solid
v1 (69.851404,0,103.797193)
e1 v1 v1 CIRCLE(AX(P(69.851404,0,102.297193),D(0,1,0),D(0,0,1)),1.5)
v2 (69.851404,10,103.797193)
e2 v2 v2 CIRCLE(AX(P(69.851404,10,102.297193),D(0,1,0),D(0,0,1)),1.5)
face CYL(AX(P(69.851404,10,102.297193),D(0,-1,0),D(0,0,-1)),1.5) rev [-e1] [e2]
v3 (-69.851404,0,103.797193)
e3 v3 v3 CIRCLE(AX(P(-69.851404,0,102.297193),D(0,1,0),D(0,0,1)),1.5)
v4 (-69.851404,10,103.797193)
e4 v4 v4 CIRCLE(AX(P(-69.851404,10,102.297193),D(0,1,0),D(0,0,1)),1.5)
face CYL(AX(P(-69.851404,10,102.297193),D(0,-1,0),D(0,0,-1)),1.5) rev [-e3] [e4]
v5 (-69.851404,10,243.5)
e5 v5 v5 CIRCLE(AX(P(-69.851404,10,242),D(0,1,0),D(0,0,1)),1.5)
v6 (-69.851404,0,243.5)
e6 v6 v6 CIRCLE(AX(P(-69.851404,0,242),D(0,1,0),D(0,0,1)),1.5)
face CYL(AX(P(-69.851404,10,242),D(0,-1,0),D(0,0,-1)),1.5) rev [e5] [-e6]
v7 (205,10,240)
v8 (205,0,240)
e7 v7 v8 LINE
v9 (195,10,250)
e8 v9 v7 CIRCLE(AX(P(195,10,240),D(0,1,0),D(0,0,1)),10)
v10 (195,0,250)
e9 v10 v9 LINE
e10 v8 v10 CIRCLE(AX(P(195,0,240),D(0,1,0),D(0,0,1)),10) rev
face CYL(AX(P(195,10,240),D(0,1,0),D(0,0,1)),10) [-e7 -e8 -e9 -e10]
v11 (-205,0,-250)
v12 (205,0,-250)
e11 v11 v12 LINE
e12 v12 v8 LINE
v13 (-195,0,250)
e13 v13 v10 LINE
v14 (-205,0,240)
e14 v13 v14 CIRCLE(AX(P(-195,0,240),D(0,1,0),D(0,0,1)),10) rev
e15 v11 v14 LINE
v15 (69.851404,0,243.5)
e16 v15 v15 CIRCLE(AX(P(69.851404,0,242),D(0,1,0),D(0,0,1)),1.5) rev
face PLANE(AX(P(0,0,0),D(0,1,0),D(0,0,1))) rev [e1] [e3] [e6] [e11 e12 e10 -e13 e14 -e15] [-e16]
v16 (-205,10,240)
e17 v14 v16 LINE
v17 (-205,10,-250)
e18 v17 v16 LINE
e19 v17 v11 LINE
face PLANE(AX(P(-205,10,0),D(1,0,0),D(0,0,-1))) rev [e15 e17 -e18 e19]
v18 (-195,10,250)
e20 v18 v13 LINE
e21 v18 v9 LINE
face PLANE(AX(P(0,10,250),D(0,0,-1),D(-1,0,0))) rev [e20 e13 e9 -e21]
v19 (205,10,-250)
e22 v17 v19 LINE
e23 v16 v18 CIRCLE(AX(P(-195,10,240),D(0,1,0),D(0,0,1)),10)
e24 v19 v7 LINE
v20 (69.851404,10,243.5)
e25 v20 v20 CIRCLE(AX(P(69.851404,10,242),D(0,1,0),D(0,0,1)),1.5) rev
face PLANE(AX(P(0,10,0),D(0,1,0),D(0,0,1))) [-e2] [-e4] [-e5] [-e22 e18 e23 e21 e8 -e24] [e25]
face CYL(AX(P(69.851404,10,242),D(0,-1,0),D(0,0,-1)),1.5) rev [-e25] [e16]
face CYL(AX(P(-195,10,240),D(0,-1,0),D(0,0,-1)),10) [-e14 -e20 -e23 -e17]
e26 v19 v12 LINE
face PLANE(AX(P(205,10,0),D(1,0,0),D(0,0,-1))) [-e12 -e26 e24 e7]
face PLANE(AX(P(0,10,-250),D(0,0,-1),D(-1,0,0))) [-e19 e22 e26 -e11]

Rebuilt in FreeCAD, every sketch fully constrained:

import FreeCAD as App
import Part
import Sketcher


def edges_at(feature, points):
    """Names of the edges that pass closest to the given points."""
    edges = feature.Shape.Edges
    near = lambda p: min(range(len(edges)), key=lambda i: edges[i].distToShape(Part.Vertex(*p))[0])
    return sorted({f"Edge{near(p) + 1}" for p in points})


def add_polygon(sketch, points):
    """Adds a closed chain of lines whose ends are joined by coincident constraints."""
    first, n = sketch.GeometryCount, len(points)
    for a, b in zip(points, points[1:] + points[:1]):
        sketch.addGeometry(Part.LineSegment(App.Vector(*a, 0), App.Vector(*b, 0)), False)
    for i in range(n):
        sketch.addConstraint(Sketcher.Constraint("Coincident", first + i, 2, first + (i + 1) % n, 1))

doc = App.newDocument("Part")
body = doc.addObject("PartDesign::Body", "Body")

sketch1 = body.newObject("Sketcher::SketchObject", "Sketch")
sketch1.AttachmentSupport = (doc.getObject("XZ_Plane"), [""])
sketch1.MapMode = "FlatFace"
add_polygon(sketch1, [(-205, -250), (-205, 250), (205, 250), (205, -250)])
sketch1.addGeometry(Part.Circle(App.Vector(-69.851404, 242, 0), App.Vector(0, 0, 1), 1.5), False)
sketch1.addGeometry(Part.Circle(App.Vector(69.851404, 242, 0), App.Vector(0, 0, 1), 1.5), False)
sketch1.addGeometry(Part.Circle(App.Vector(-69.851404, 102.297193, 0), App.Vector(0, 0, 1), 1.5), False)
sketch1.addGeometry(Part.Circle(App.Vector(69.851404, 102.297193, 0), App.Vector(0, 0, 1), 1.5), False)
sketch1.addConstraint(Sketcher.Constraint("Vertical", 0))
sketch1.addConstraint(Sketcher.Constraint("Horizontal", 1))
sketch1.addConstraint(Sketcher.Constraint("Vertical", 2))
sketch1.addConstraint(Sketcher.Constraint("Horizontal", 3))
sketch1.addConstraint(Sketcher.Constraint("Equal", 4, 5))
sketch1.addConstraint(Sketcher.Constraint("Equal", 5, 6))
sketch1.addConstraint(Sketcher.Constraint("Equal", 6, 7))
sketch1.addConstraint(Sketcher.Constraint("Symmetric", 0, 2, 2, 2, -1, 1))
sketch1.addConstraint(Sketcher.Constraint("Symmetric", 4, 3, 5, 3, -2))
sketch1.addConstraint(Sketcher.Constraint("Symmetric", 6, 3, 7, 3, -2))
sketch1.addConstraint(Sketcher.Constraint("Vertical", 4, 3, 6, 3))
sketch1.addConstraint(Sketcher.Constraint("Diameter", 4, 3.0))
sketch1.addConstraint(Sketcher.Constraint("DistanceX", 1, 1, 1, 2, 410.0))
sketch1.addConstraint(Sketcher.Constraint("DistanceY", 0, 1, 0, 2, 500.0))
sketch1.addConstraint(Sketcher.Constraint("DistanceY", -1, 1, 4, 3, 242.0))
sketch1.addConstraint(Sketcher.Constraint("DistanceX", 4, 3, -1, 1, 69.851404))
sketch1.addConstraint(Sketcher.Constraint("DistanceY", -1, 1, 6, 3, 102.297193))
pad1 = body.newObject("PartDesign::Pad", "Pad")
pad1.Profile = sketch1
pad1.Length = 10
pad1.Reversed = True
doc.recompute()

fillet = body.newObject("PartDesign::Fillet", "Fillet")
fillet.Base = (pad1, edges_at(pad1, [(205, 5, 250), (-205, 5, 250)]))
fillet.Radius = 10

doc.recompute()
